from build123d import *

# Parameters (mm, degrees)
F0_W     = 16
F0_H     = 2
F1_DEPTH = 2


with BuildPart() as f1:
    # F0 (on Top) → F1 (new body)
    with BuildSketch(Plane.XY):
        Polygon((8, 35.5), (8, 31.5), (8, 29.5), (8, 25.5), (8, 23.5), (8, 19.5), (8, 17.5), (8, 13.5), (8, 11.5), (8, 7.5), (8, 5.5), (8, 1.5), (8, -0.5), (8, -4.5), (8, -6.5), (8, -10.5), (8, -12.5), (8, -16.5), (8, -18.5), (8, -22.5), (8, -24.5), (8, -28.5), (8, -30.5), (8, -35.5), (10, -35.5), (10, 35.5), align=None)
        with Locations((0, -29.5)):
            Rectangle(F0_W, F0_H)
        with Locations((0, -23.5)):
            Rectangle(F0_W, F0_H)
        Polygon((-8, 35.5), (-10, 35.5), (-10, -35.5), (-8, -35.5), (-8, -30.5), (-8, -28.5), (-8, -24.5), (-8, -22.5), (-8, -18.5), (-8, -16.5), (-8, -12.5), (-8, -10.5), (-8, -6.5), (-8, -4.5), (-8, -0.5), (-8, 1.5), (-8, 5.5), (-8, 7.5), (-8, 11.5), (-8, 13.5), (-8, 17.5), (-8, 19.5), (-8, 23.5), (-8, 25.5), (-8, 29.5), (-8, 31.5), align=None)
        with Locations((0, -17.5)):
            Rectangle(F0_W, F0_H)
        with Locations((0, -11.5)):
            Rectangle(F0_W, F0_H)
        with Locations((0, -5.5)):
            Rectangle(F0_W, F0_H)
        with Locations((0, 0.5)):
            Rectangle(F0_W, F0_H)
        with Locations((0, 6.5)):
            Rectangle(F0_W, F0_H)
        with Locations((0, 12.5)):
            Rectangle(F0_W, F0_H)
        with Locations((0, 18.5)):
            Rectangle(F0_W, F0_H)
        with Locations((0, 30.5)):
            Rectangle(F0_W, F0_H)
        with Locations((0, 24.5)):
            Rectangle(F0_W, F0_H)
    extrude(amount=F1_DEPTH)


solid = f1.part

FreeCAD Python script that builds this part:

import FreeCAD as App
import Part
import Sketcher
from FreeCAD import Vector

doc = App.newDocument("Part")
body = doc.addObject("PartDesign::Body", "Body")

sketch1 = body.newObject("Sketcher::SketchObject", "Sketch")
sketch1.AttachmentSupport = (doc.getObject("XY_Plane"), [""])
sketch1.MapMode = "FlatFace"
sketch1.addGeometry(Part.LineSegment(Vector(8, 35.5, 0), Vector(8, 31.5, 0)), False)
sketch1.addGeometry(Part.LineSegment(Vector(8, 31.5, 0), Vector(-8, 31.5, 0)), False)
sketch1.addGeometry(Part.LineSegment(Vector(-8, 31.5, 0), Vector(-8, 35.5, 0)), False)
sketch1.addGeometry(Part.LineSegment(Vector(-8, 35.5, 0), Vector(-10, 35.5, 0)), False)
sketch1.addGeometry(Part.LineSegment(Vector(-10, 35.5, 0), Vector(-10, -35.5, 0)), False)
sketch1.addGeometry(Part.LineSegment(Vector(-10, -35.5, 0), Vector(-8, -35.5, 0)), False)
sketch1.addGeometry(Part.LineSegment(Vector(-8, -35.5, 0), Vector(-8, -30.5, 0)), False)
sketch1.addGeometry(Part.LineSegment(Vector(-8, -30.5, 0), Vector(8, -30.5, 0)), False)
sketch1.addGeometry(Part.LineSegment(Vector(8, -30.5, 0), Vector(8, -35.5, 0)), False)
sketch1.addGeometry(Part.LineSegment(Vector(8, -35.5, 0), Vector(10, -35.5, 0)), False)
sketch1.addGeometry(Part.LineSegment(Vector(10, -35.5, 0), Vector(10, 35.5, 0)), False)
sketch1.addGeometry(Part.LineSegment(Vector(10, 35.5, 0), Vector(8, 35.5, 0)), False)
sketch1.addGeometry(Part.LineSegment(Vector(8, 29.5, 0), Vector(8, 25.5, 0)), False)
sketch1.addGeometry(Part.LineSegment(Vector(8, 25.5, 0), Vector(-8, 25.5, 0)), False)
sketch1.addGeometry(Part.LineSegment(Vector(-8, 25.5, 0), Vector(-8, 29.5, 0)), False)
sketch1.addGeometry(Part.LineSegment(Vector(-8, 29.5, 0), Vector(8, 29.5, 0)), False)
sketch1.addGeometry(Part.LineSegment(Vector(8, 23.5, 0), Vector(8, 19.5, 0)), False)
sketch1.addGeometry(Part.LineSegment(Vector(8, 19.5, 0), Vector(-8, 19.5, 0)), False)
sketch1.addGeometry(Part.LineSegment(Vector(-8, 19.5, 0), Vector(-8, 23.5, 0)), False)
sketch1.addGeometry(Part.LineSegment(Vector(-8, 23.5, 0), Vector(8, 23.5, 0)), False)
sketch1.addGeometry(Part.LineSegment(Vector(8, 17.5, 0), Vector(8, 13.5, 0)), False)
sketch1.addGeometry(Part.LineSegment(Vector(8, 13.5, 0), Vector(-8, 13.5, 0)), False)
sketch1.addGeometry(Part.LineSegment(Vector(-8, 13.5, 0), Vector(-8, 17.5, 0)), False)
sketch1.addGeometry(Part.LineSegment(Vector(-8, 17.5, 0), Vector(8, 17.5, 0)), False)
sketch1.addGeometry(Part.LineSegment(Vector(8, 11.5, 0), Vector(8, 7.5, 0)), False)
sketch1.addGeometry(Part.LineSegment(Vector(8, 7.5, 0), Vector(-8, 7.5, 0)), False)
sketch1.addGeometry(Part.LineSegment(Vector(-8, 7.5, 0), Vector(-8, 11.5, 0)), False)
sketch1.addGeometry(Part.LineSegment(Vector(-8, 11.5, 0), Vector(8, 11.5, 0)), False)
sketch1.addGeometry(Part.LineSegment(Vector(8, 5.5, 0), Vector(8, 1.5, 0)), False)
sketch1.addGeometry(Part.LineSegment(Vector(8, 1.5, 0), Vector(-8, 1.5, 0)), False)
sketch1.addGeometry(Part.LineSegment(Vector(-8, 1.5, 0), Vector(-8, 5.5, 0)), False)
sketch1.addGeometry(Part.LineSegment(Vector(-8, 5.5, 0), Vector(8, 5.5, 0)), False)
sketch1.addGeometry(Part.LineSegment(Vector(8, -0.5, 0), Vector(8, -4.5, 0)), False)
sketch1.addGeometry(Part.LineSegment(Vector(8, -4.5, 0), Vector(-8, -4.5, 0)), False)
sketch1.addGeometry(Part.LineSegment(Vector(-8, -4.5, 0), Vector(-8, -0.5, 0)), False)
sketch1.addGeometry(Part.LineSegment(Vector(-8, -0.5, 0), Vector(8, -0.5, 0)), False)
sketch1.addGeometry(Part.LineSegment(Vector(8, -6.5, 0), Vector(8, -10.5, 0)), False)
sketch1.addGeometry(Part.LineSegment(Vector(8, -10.5, 0), Vector(-8, -10.5, 0)), False)
sketch1.addGeometry(Part.LineSegment(Vector(-8, -10.5, 0), Vector(-8, -6.5, 0)), False)
sketch1.addGeometry(Part.LineSegment(Vector(-8, -6.5, 0), Vector(8, -6.5, 0)), False)
sketch1.addGeometry(Part.LineSegment(Vector(8, -12.5, 0), Vector(8, -16.5, 0)), False)
sketch1.addGeometry(Part.LineSegment(Vector(8, -16.5, 0), Vector(-8, -16.5, 0)), False)
sketch1.addGeometry(Part.LineSegment(Vector(-8, -16.5, 0), Vector(-8, -12.5, 0)), False)
sketch1.addGeometry(Part.LineSegment(Vector(-8, -12.5, 0), Vector(8, -12.5, 0)), False)
sketch1.addGeometry(Part.LineSegment(Vector(8, -18.5, 0), Vector(8, -22.5, 0)), False)
sketch1.addGeometry(Part.LineSegment(Vector(8, -22.5, 0), Vector(-8, -22.5, 0)), False)
sketch1.addGeometry(Part.LineSegment(Vector(-8, -22.5, 0), Vector(-8, -18.5, 0)), False)
sketch1.addGeometry(Part.LineSegment(Vector(-8, -18.5, 0), Vector(8, -18.5, 0)), False)
sketch1.addGeometry(Part.LineSegment(Vector(-8, -24.5, 0), Vector(8, -24.5, 0)), False)
sketch1.addGeometry(Part.LineSegment(Vector(8, -24.5, 0), Vector(8, -28.5, 0)), False)
sketch1.addGeometry(Part.LineSegment(Vector(8, -28.5, 0), Vector(-8, -28.5, 0)), False)
sketch1.addGeometry(Part.LineSegment(Vector(-8, -28.5, 0), Vector(-8, -24.5, 0)), False)
sketch1.addConstraint(Sketcher.Constraint("Coincident", 0, 2, 1, 1))
sketch1.addConstraint(Sketcher.Constraint("Coincident", 1, 2, 2, 1))
sketch1.addConstraint(Sketcher.Constraint("Coincident", 2, 2, 3, 1))
sketch1.addConstraint(Sketcher.Constraint("Coincident", 3, 2, 4, 1))
sketch1.addConstraint(Sketcher.Constraint("Coincident", 4, 2, 5, 1))
sketch1.addConstraint(Sketcher.Constraint("Coincident", 5, 2, 6, 1))
sketch1.addConstraint(Sketcher.Constraint("Coincident", 6, 2, 7, 1))
sketch1.addConstraint(Sketcher.Constraint("Coincident", 7, 2, 8, 1))
sketch1.addConstraint(Sketcher.Constraint("Coincident", 8, 2, 9, 1))
sketch1.addConstraint(Sketcher.Constraint("Coincident", 9, 2, 10, 1))
sketch1.addConstraint(Sketcher.Constraint("Coincident", 10, 2, 11, 1))
sketch1.addConstraint(Sketcher.Constraint("Coincident", 11, 2, 0, 1))
sketch1.addConstraint(Sketcher.Constraint("Coincident", 12, 2, 13, 1))
sketch1.addConstraint(Sketcher.Constraint("Coincident", 13, 2, 14, 1))
sketch1.addConstraint(Sketcher.Constraint("Coincident", 14, 2, 15, 1))
sketch1.addConstraint(Sketcher.Constraint("Coincident", 15, 2, 12, 1))
sketch1.addConstraint(Sketcher.Constraint("Coincident", 16, 2, 17, 1))
sketch1.addConstraint(Sketcher.Constraint("Coincident", 17, 2, 18, 1))
sketch1.addConstraint(Sketcher.Constraint("Coincident", 18, 2, 19, 1))
sketch1.addConstraint(Sketcher.Constraint("Coincident", 19, 2, 16, 1))
sketch1.addConstraint(Sketcher.Constraint("Coincident", 20, 2, 21, 1))
sketch1.addConstraint(Sketcher.Constraint("Coincident", 21, 2, 22, 1))
sketch1.addConstraint(Sketcher.Constraint("Coincident", 22, 2, 23, 1))
sketch1.addConstraint(Sketcher.Constraint("Coincident", 23, 2, 20, 1))
sketch1.addConstraint(Sketcher.Constraint("Coincident", 24, 2, 25, 1))
sketch1.addConstraint(Sketcher.Constraint("Coincident", 25, 2, 26, 1))
sketch1.addConstraint(Sketcher.Constraint("Coincident", 26, 2, 27, 1))
sketch1.addConstraint(Sketcher.Constraint("Coincident", 27, 2, 24, 1))
sketch1.addConstraint(Sketcher.Constraint("Coincident", 28, 2, 29, 1))
sketch1.addConstraint(Sketcher.Constraint("Coincident", 29, 2, 30, 1))
sketch1.addConstraint(Sketcher.Constraint("Coincident", 30, 2, 31, 1))
sketch1.addConstraint(Sketcher.Constraint("Coincident", 31, 2, 28, 1))
sketch1.addConstraint(Sketcher.Constraint("Coincident", 32, 2, 33, 1))
sketch1.addConstraint(Sketcher.Constraint("Coincident", 33, 2, 34, 1))
sketch1.addConstraint(Sketcher.Constraint("Coincident", 34, 2, 35, 1))
sketch1.addConstraint(Sketcher.Constraint("Coincident", 35, 2, 32, 1))
sketch1.addConstraint(Sketcher.Constraint("Coincident", 36, 2, 37, 1))
sketch1.addConstraint(Sketcher.Constraint("Coincident", 37, 2, 38, 1))
sketch1.addConstraint(Sketcher.Constraint("Coincident", 38, 2, 39, 1))
sketch1.addConstraint(Sketcher.Constraint("Coincident", 39, 2, 36, 1))
sketch1.addConstraint(Sketcher.Constraint("Coincident", 40, 2, 41, 1))
sketch1.addConstraint(Sketcher.Constraint("Coincident", 41, 2, 42, 1))
sketch1.addConstraint(Sketcher.Constraint("Coincident", 42, 2, 43, 1))
sketch1.addConstraint(Sketcher.Constraint("Coincident", 43, 2, 40, 1))
sketch1.addConstraint(Sketcher.Constraint("Coincident", 44, 2, 45, 1))
sketch1.addConstraint(Sketcher.Constraint("Coincident", 45, 2, 46, 1))
sketch1.addConstraint(Sketcher.Constraint("Coincident", 46, 2, 47, 1))
sketch1.addConstraint(Sketcher.Constraint("Coincident", 47, 2, 44, 1))
sketch1.addConstraint(Sketcher.Constraint("Coincident", 48, 2, 49, 1))
sketch1.addConstraint(Sketcher.Constraint("Coincident", 49, 2, 50, 1))
sketch1.addConstraint(Sketcher.Constraint("Coincident", 50, 2, 51, 1))
sketch1.addConstraint(Sketcher.Constraint("Coincident", 51, 2, 48, 1))
sketch1.addConstraint(Sketcher.Constraint("Vertical", 0))
sketch1.addConstraint(Sketcher.Constraint("Horizontal", 1))
sketch1.addConstraint(Sketcher.Constraint("Vertical", 2))
sketch1.addConstraint(Sketcher.Constraint("Horizontal", 3))
sketch1.addConstraint(Sketcher.Constraint("Vertical", 4))
sketch1.addConstraint(Sketcher.Constraint("Horizontal", 5))
sketch1.addConstraint(Sketcher.Constraint("Vertical", 6))
sketch1.addConstraint(Sketcher.Constraint("Horizontal", 7))
sketch1.addConstraint(Sketcher.Constraint("Vertical", 8))
sketch1.addConstraint(Sketcher.Constraint("Horizontal", 9))
sketch1.addConstraint(Sketcher.Constraint("Vertical", 10))
sketch1.addConstraint(Sketcher.Constraint("Horizontal", 11))
sketch1.addConstraint(Sketcher.Constraint("Vertical", 12))
sketch1.addConstraint(Sketcher.Constraint("Horizontal", 13))
sketch1.addConstraint(Sketcher.Constraint("Vertical", 14))
sketch1.addConstraint(Sketcher.Constraint("Horizontal", 15))
sketch1.addConstraint(Sketcher.Constraint("Vertical", 16))
sketch1.addConstraint(Sketcher.Constraint("Horizontal", 17))
sketch1.addConstraint(Sketcher.Constraint("Vertical", 18))
sketch1.addConstraint(Sketcher.Constraint("Horizontal", 19))
sketch1.addConstraint(Sketcher.Constraint("Vertical", 20))
sketch1.addConstraint(Sketcher.Constraint("Horizontal", 21))
sketch1.addConstraint(Sketcher.Constraint("Vertical", 22))
sketch1.addConstraint(Sketcher.Constraint("Horizontal", 23))
sketch1.addConstraint(Sketcher.Constraint("Vertical", 24))
sketch1.addConstraint(Sketcher.Constraint("Horizontal", 25))
sketch1.addConstraint(Sketcher.Constraint("Vertical", 26))
sketch1.addConstraint(Sketcher.Constraint("Horizontal", 27))
sketch1.addConstraint(Sketcher.Constraint("Vertical", 28))
sketch1.addConstraint(Sketcher.Constraint("Horizontal", 29))
sketch1.addConstraint(Sketcher.Constraint("Vertical", 30))
sketch1.addConstraint(Sketcher.Constraint("Horizontal", 31))
sketch1.addConstraint(Sketcher.Constraint("Vertical", 32))
sketch1.addConstraint(Sketcher.Constraint("Horizontal", 33))
sketch1.addConstraint(Sketcher.Constraint("Vertical", 34))
sketch1.addConstraint(Sketcher.Constraint("Horizontal", 35))
sketch1.addConstraint(Sketcher.Constraint("Vertical", 36))
sketch1.addConstraint(Sketcher.Constraint("Horizontal", 37))
sketch1.addConstraint(Sketcher.Constraint("Vertical", 38))
sketch1.addConstraint(Sketcher.Constraint("Horizontal", 39))
sketch1.addConstraint(Sketcher.Constraint("Vertical", 40))
sketch1.addConstraint(Sketcher.Constraint("Horizontal", 41))
sketch1.addConstraint(Sketcher.Constraint("Vertical", 42))
sketch1.addConstraint(Sketcher.Constraint("Horizontal", 43))
sketch1.addConstraint(Sketcher.Constraint("Vertical", 44))
sketch1.addConstraint(Sketcher.Constraint("Horizontal", 45))
sketch1.addConstraint(Sketcher.Constraint("Vertical", 46))
sketch1.addConstraint(Sketcher.Constraint("Horizontal", 47))
sketch1.addConstraint(Sketcher.Constraint("Horizontal", 48))
sketch1.addConstraint(Sketcher.Constraint("Vertical", 49))
sketch1.addConstraint(Sketcher.Constraint("Horizontal", 50))
sketch1.addConstraint(Sketcher.Constraint("Vertical", 51))
sketch1.addConstraint(Sketcher.Constraint("Symmetric", 2, 2, 8, 2, -1, 1))
sketch1.addConstraint(Sketcher.Constraint("Symmetric", 4, 2, 10, 2, -1, 1))
sketch1.addConstraint(Sketcher.Constraint("Symmetric", 5, 2, 8, 2, -2))
sketch1.addConstraint(Sketcher.Constraint("Vertical", 0, 2, 7, 2))
sketch1.addConstraint(Sketcher.Constraint("Vertical", 11, 2, 12, 2))
sketch1.addConstraint(Sketcher.Constraint("Vertical", 6, 2, 13, 2))
sketch1.addConstraint(Sketcher.Constraint("Vertical", 15, 2, 16, 2))
sketch1.addConstraint(Sketcher.Constraint("Vertical", 14, 2, 17, 2))
sketch1.addConstraint(Sketcher.Constraint("Vertical", 19, 2, 20, 2))
sketch1.addConstraint(Sketcher.Constraint("Vertical", 18, 2, 21, 2))
sketch1.addConstraint(Sketcher.Constraint("Vertical", 23, 2, 24, 2))
sketch1.addConstraint(Sketcher.Constraint("Vertical", 22, 2, 25, 2))
sketch1.addConstraint(Sketcher.Constraint("Vertical", 27, 2, 28, 2))
sketch1.addConstraint(Sketcher.Constraint("Vertical", 26, 2, 29, 2))
sketch1.addConstraint(Sketcher.Constraint("Vertical", 31, 2, 32, 2))
sketch1.addConstraint(Sketcher.Constraint("Vertical", 30, 2, 33, 2))
sketch1.addConstraint(Sketcher.Constraint("Vertical", 35, 2, 36, 2))
sketch1.addConstraint(Sketcher.Constraint("Vertical", 34, 2, 37, 2))
sketch1.addConstraint(Sketcher.Constraint("Vertical", 39, 2, 40, 2))
sketch1.addConstraint(Sketcher.Constraint("Vertical", 38, 2, 41, 2))
sketch1.addConstraint(Sketcher.Constraint("Vertical", 43, 2, 44, 2))
sketch1.addConstraint(Sketcher.Constraint("Vertical", 42, 2, 45, 2))
sketch1.addConstraint(Sketcher.Constraint("Vertical", 47, 2, 48, 2))
sketch1.addConstraint(Sketcher.Constraint("Vertical", 46, 2, 50, 2))
sketch1.addConstraint(Sketcher.Constraint("Equal", 2, 12))
sketch1.addConstraint(Sketcher.Constraint("Equal", 14, 16))
sketch1.addConstraint(Sketcher.Constraint("Equal", 18, 20))
sketch1.addConstraint(Sketcher.Constraint("Equal", 22, 24))
sketch1.addConstraint(Sketcher.Constraint("Equal", 26, 28))
sketch1.addConstraint(Sketcher.Constraint("Equal", 30, 32))
sketch1.addConstraint(Sketcher.Constraint("Equal", 34, 36))
sketch1.addConstraint(Sketcher.Constraint("Equal", 38, 40))
sketch1.addConstraint(Sketcher.Constraint("Equal", 42, 44))
sketch1.addConstraint(Sketcher.Constraint("Equal", 46, 49))
sketch1.addConstraint(Sketcher.Constraint("DistanceX", 1, 2, 1, 1, 16.0))
sketch1.addConstraint(Sketcher.Constraint("DistanceX", 3, 2, 3, 1, 2.0))
sketch1.addConstraint(Sketcher.Constraint("DistanceY", 0, 2, 0, 1, 4.0))
sketch1.addConstraint(Sketcher.Constraint("DistanceY", 4, 2, 4, 1, 71.0))
sketch1.addConstraint(Sketcher.Constraint("DistanceY", 6, 1, 6, 2, 5.0))
sketch1.addConstraint(Sketcher.Constraint("DistanceY", 12, 2, 0, 2, 6.0))
sketch1.addConstraint(Sketcher.Constraint("DistanceY", 16, 2, 12, 2, 6.0))
sketch1.addConstraint(Sketcher.Constraint("DistanceY", 20, 2, 16, 2, 6.0))
sketch1.addConstraint(Sketcher.Constraint("DistanceY", 24, 2, 20, 2, 6.0))
sketch1.addConstraint(Sketcher.Constraint("DistanceY", 28, 2, 24, 2, 6.0))
sketch1.addConstraint(Sketcher.Constraint("DistanceY", 32, 2, 28, 2, 6.0))
sketch1.addConstraint(Sketcher.Constraint("DistanceY", 36, 2, 32, 2, 6.0))
sketch1.addConstraint(Sketcher.Constraint("DistanceY", 40, 2, 36, 2, 6.0))
sketch1.addConstraint(Sketcher.Constraint("DistanceY", 44, 2, 40, 2, 6.0))
sketch1.addConstraint(Sketcher.Constraint("DistanceY", 48, 2, 44, 2, 2.0))
pad1 = body.newObject("PartDesign::Pad", "Pad")
pad1.Profile = sketch1
pad1.Length = 2

doc.recompute()
